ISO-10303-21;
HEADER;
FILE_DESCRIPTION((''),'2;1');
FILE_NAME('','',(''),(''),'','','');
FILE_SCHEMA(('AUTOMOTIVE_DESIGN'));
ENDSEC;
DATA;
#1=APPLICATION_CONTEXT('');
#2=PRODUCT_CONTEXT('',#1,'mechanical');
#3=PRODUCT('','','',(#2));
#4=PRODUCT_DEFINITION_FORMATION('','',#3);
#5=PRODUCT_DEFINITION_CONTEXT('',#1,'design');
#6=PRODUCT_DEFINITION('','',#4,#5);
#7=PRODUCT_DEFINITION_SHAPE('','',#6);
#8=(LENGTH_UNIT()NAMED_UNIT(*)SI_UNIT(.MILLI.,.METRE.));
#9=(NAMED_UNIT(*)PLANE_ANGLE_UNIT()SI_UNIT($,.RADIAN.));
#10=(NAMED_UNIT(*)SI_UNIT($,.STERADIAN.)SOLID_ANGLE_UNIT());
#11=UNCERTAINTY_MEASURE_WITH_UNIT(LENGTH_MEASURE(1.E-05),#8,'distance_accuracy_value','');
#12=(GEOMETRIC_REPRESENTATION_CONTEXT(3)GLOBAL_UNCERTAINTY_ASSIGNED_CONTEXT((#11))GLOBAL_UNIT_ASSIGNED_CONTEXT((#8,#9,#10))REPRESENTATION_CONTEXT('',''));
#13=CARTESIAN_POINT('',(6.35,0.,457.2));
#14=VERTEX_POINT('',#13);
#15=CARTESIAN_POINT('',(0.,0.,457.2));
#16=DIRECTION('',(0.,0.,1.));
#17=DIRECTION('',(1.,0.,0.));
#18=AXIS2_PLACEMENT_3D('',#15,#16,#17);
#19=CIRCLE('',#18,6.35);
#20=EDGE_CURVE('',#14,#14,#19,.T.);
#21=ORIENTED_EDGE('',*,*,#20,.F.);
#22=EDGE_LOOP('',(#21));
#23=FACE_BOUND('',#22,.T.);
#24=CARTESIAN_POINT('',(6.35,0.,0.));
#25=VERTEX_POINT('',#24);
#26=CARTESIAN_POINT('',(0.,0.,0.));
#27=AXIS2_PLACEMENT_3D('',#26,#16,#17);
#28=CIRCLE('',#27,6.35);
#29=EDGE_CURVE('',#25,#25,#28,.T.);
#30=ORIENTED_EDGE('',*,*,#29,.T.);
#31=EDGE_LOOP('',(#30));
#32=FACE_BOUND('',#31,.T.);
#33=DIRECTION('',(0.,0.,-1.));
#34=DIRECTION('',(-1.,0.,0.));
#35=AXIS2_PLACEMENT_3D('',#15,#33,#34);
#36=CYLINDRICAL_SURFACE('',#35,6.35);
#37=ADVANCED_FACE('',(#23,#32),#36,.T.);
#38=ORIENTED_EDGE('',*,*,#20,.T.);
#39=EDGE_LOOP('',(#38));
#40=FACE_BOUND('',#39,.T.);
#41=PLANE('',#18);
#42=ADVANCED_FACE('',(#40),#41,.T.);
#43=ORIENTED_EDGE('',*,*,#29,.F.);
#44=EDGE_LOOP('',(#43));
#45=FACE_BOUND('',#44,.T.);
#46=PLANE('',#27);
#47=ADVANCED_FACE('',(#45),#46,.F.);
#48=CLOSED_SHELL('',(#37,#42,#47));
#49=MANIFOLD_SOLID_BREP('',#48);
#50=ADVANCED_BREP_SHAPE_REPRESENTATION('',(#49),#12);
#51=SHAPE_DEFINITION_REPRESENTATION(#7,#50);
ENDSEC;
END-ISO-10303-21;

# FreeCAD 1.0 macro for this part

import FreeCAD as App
import Part
import Sketcher

V = App.Vector
Q = App.Units.Quantity

doc = App.newDocument("Part")
body = doc.addObject("PartDesign::Body", "Body")

sketch1 = doc.addObject("Sketcher::SketchObject", "Sketch")
body.addObject(sketch1)
sketch1.AttachmentSupport = (doc.XY_Plane, [""])
sketch1.MapMode = "FlatFace"
sketch1.addGeometry(Part.Circle(V(0, 0, 0), V(0, 0, 1), 6.35), False)
sketch1.addConstraint(Sketcher.Constraint("Coincident", 0, 3, -1, 1))
sketch1.addConstraint(Sketcher.Constraint("Diameter", 0, Q("0.5 in")))
pad1 = doc.addObject("PartDesign::Pad", "Pad")
body.addObject(pad1)
pad1.Profile = sketch1
pad1.Length = Q("18 in")

doc.recompute()
